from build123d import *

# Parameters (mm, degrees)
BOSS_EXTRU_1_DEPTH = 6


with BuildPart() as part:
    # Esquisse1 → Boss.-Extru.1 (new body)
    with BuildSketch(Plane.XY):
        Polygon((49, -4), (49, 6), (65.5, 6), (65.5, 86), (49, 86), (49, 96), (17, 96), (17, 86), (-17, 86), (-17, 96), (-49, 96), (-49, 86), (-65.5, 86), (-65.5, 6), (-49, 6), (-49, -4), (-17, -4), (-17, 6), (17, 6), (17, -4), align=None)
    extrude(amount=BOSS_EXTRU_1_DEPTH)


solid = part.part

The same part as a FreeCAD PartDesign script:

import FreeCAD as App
import Part
import Sketcher
from FreeCAD import Vector
Q = App.Units.Quantity

doc = App.newDocument("Part")
body = doc.addObject("PartDesign::Body", "Body")

# Sketch on XY plane
sketch1 = body.newObject("Sketcher::SketchObject", "Sketch")
sketch1.AttachmentSupport = (doc.getObject("XY_Plane"), [""])
sketch1.MapMode = "FlatFace"
sketch1.addGeometry(Part.LineSegment(Vector(49, -4, 0), Vector(49, 6, 0)), False)
sketch1.addGeometry(Part.LineSegment(Vector(49, 6, 0), Vector(65.5, 6, 0)), False)
sketch1.addGeometry(Part.LineSegment(Vector(65.5, 6, 0), Vector(65.5, 86, 0)), False)
sketch1.addGeometry(Part.LineSegment(Vector(65.5, 86, 0), Vector(49, 86, 0)), False)
sketch1.addGeometry(Part.LineSegment(Vector(49, 86, 0), Vector(49, 96, 0)), False)
sketch1.addGeometry(Part.LineSegment(Vector(49, 96, 0), Vector(17, 96, 0)), False)
sketch1.addGeometry(Part.LineSegment(Vector(17, 96, 0), Vector(17, 86, 0)), False)
sketch1.addGeometry(Part.LineSegment(Vector(17, 86, 0), Vector(-17, 86, 0)), False)
sketch1.addGeometry(Part.LineSegment(Vector(-17, 86, 0), Vector(-17, 96, 0)), False)
sketch1.addGeometry(Part.LineSegment(Vector(-17, 96, 0), Vector(-49, 96, 0)), False)
sketch1.addGeometry(Part.LineSegment(Vector(-49, 96, 0), Vector(-49, 86, 0)), False)
sketch1.addGeometry(Part.LineSegment(Vector(-49, 86, 0), Vector(-65.5, 86, 0)), False)
sketch1.addGeometry(Part.LineSegment(Vector(-65.5, 86, 0), Vector(-65.5, 6, 0)), False)
sketch1.addGeometry(Part.LineSegment(Vector(-65.5, 6, 0), Vector(-49, 6, 0)), False)
sketch1.addGeometry(Part.LineSegment(Vector(-49, 6, 0), Vector(-49, -4, 0)), False)
sketch1.addGeometry(Part.LineSegment(Vector(-49, -4, 0), Vector(-17, -4, 0)), False)
sketch1.addGeometry(Part.LineSegment(Vector(-17, -4, 0), Vector(-17, 6, 0)), False)
sketch1.addGeometry(Part.LineSegment(Vector(-17, 6, 0), Vector(17, 6, 0)), False)
sketch1.addGeometry(Part.LineSegment(Vector(17, 6, 0), Vector(17, -4, 0)), False)
sketch1.addGeometry(Part.LineSegment(Vector(17, -4, 0), Vector(49, -4, 0)), False)
sketch1.addConstraint(Sketcher.Constraint("Coincident", 0, 2, 1, 1))
sketch1.addConstraint(Sketcher.Constraint("Coincident", 1, 2, 2, 1))
sketch1.addConstraint(Sketcher.Constraint("Coincident", 2, 2, 3, 1))
sketch1.addConstraint(Sketcher.Constraint("Coincident", 3, 2, 4, 1))
sketch1.addConstraint(Sketcher.Constraint("Coincident", 4, 2, 5, 1))
sketch1.addConstraint(Sketcher.Constraint("Coincident", 5, 2, 6, 1))
sketch1.addConstraint(Sketcher.Constraint("Coincident", 6, 2, 7, 1))
sketch1.addConstraint(Sketcher.Constraint("Coincident", 7, 2, 8, 1))
sketch1.addConstraint(Sketcher.Constraint("Coincident", 8, 2, 9, 1))
sketch1.addConstraint(Sketcher.Constraint("Coincident", 9, 2, 10, 1))
sketch1.addConstraint(Sketcher.Constraint("Coincident", 10, 2, 11, 1))
sketch1.addConstraint(Sketcher.Constraint("Coincident", 11, 2, 12, 1))
sketch1.addConstraint(Sketcher.Constraint("Coincident", 12, 2, 13, 1))
sketch1.addConstraint(Sketcher.Constraint("Coincident", 13, 2, 14, 1))
sketch1.addConstraint(Sketcher.Constraint("Coincident", 14, 2, 15, 1))
sketch1.addConstraint(Sketcher.Constraint("Coincident", 15, 2, 16, 1))
sketch1.addConstraint(Sketcher.Constraint("Coincident", 16, 2, 17, 1))
sketch1.addConstraint(Sketcher.Constraint("Coincident", 17, 2, 18, 1))
sketch1.addConstraint(Sketcher.Constraint("Coincident", 18, 2, 19, 1))
sketch1.addConstraint(Sketcher.Constraint("Coincident", 19, 2, 0, 1))
sketch1.addConstraint(Sketcher.Constraint("Vertical", 0))
sketch1.addConstraint(Sketcher.Constraint("Horizontal", 1))
sketch1.addConstraint(Sketcher.Constraint("Vertical", 2))
sketch1.addConstraint(Sketcher.Constraint("Horizontal", 3))
sketch1.addConstraint(Sketcher.Constraint("Vertical", 4))
sketch1.addConstraint(Sketcher.Constraint("Horizontal", 5))
sketch1.addConstraint(Sketcher.Constraint("Vertical", 6))
sketch1.addConstraint(Sketcher.Constraint("Horizontal", 7))
sketch1.addConstraint(Sketcher.Constraint("Vertical", 8))
sketch1.addConstraint(Sketcher.Constraint("Horizontal", 9))
sketch1.addConstraint(Sketcher.Constraint("Vertical", 10))
sketch1.addConstraint(Sketcher.Constraint("Horizontal", 11))
sketch1.addConstraint(Sketcher.Constraint("Vertical", 12))
sketch1.addConstraint(Sketcher.Constraint("Horizontal", 13))
sketch1.addConstraint(Sketcher.Constraint("Vertical", 14))
sketch1.addConstraint(Sketcher.Constraint("Horizontal", 15))
sketch1.addConstraint(Sketcher.Constraint("Vertical", 16))
sketch1.addConstraint(Sketcher.Constraint("Horizontal", 17))
sketch1.addConstraint(Sketcher.Constraint("Vertical", 18))
sketch1.addConstraint(Sketcher.Constraint("Horizontal", 19))
sketch1.addConstraint(Sketcher.Constraint("Symmetric", 5, 2, 8, 2, -2))
sketch1.addConstraint(Sketcher.Constraint("Symmetric", 3, 2, 10, 2, -2))
sketch1.addConstraint(Sketcher.Constraint("Symmetric", 1, 2, 12, 2, -2))
sketch1.addConstraint(Sketcher.Constraint("Symmetric", 15, 2, 18, 2, -2))
sketch1.addConstraint(Sketcher.Constraint("Horizontal", 3, 2, 6, 2))
sketch1.addConstraint(Sketcher.Constraint("Horizontal", 13, 2, 16, 2))
sketch1.addConstraint(Sketcher.Constraint("Vertical", 0, 2, 3, 2))
sketch1.addConstraint(Sketcher.Constraint("Vertical", 10, 2, 13, 2))
sketch1.addConstraint(Sketcher.Constraint("Vertical", 8, 2, 15, 2))
sketch1.addConstraint(Sketcher.Constraint("Equal", 0, 4))
sketch1.addConstraint(Sketcher.Constraint("DistanceX", 5, 2, 5, 1, Q("32 mm")))
sketch1.addConstraint(Sketcher.Constraint("DistanceX", 7, 2, 7, 1, Q("34 mm")))
sketch1.addConstraint(Sketcher.Constraint("DistanceY", 0, 1, 0, 2, Q("10 mm")))
sketch1.addConstraint(Sketcher.Constraint("DistanceY", 2, 1, 2, 2, Q("80 mm")))
sketch1.addConstraint(Sketcher.Constraint("DistanceX", 1, 1, 1, 2, Q("16.5 mm")))
sketch1.addConstraint(Sketcher.Constraint("DistanceY", -1, 1, 0, 2, Q("6 mm")))
pad1 = body.newObject("PartDesign::Pad", "Pad")
pad1.Profile = sketch1
pad1.Length = 6

doc.recompute()
